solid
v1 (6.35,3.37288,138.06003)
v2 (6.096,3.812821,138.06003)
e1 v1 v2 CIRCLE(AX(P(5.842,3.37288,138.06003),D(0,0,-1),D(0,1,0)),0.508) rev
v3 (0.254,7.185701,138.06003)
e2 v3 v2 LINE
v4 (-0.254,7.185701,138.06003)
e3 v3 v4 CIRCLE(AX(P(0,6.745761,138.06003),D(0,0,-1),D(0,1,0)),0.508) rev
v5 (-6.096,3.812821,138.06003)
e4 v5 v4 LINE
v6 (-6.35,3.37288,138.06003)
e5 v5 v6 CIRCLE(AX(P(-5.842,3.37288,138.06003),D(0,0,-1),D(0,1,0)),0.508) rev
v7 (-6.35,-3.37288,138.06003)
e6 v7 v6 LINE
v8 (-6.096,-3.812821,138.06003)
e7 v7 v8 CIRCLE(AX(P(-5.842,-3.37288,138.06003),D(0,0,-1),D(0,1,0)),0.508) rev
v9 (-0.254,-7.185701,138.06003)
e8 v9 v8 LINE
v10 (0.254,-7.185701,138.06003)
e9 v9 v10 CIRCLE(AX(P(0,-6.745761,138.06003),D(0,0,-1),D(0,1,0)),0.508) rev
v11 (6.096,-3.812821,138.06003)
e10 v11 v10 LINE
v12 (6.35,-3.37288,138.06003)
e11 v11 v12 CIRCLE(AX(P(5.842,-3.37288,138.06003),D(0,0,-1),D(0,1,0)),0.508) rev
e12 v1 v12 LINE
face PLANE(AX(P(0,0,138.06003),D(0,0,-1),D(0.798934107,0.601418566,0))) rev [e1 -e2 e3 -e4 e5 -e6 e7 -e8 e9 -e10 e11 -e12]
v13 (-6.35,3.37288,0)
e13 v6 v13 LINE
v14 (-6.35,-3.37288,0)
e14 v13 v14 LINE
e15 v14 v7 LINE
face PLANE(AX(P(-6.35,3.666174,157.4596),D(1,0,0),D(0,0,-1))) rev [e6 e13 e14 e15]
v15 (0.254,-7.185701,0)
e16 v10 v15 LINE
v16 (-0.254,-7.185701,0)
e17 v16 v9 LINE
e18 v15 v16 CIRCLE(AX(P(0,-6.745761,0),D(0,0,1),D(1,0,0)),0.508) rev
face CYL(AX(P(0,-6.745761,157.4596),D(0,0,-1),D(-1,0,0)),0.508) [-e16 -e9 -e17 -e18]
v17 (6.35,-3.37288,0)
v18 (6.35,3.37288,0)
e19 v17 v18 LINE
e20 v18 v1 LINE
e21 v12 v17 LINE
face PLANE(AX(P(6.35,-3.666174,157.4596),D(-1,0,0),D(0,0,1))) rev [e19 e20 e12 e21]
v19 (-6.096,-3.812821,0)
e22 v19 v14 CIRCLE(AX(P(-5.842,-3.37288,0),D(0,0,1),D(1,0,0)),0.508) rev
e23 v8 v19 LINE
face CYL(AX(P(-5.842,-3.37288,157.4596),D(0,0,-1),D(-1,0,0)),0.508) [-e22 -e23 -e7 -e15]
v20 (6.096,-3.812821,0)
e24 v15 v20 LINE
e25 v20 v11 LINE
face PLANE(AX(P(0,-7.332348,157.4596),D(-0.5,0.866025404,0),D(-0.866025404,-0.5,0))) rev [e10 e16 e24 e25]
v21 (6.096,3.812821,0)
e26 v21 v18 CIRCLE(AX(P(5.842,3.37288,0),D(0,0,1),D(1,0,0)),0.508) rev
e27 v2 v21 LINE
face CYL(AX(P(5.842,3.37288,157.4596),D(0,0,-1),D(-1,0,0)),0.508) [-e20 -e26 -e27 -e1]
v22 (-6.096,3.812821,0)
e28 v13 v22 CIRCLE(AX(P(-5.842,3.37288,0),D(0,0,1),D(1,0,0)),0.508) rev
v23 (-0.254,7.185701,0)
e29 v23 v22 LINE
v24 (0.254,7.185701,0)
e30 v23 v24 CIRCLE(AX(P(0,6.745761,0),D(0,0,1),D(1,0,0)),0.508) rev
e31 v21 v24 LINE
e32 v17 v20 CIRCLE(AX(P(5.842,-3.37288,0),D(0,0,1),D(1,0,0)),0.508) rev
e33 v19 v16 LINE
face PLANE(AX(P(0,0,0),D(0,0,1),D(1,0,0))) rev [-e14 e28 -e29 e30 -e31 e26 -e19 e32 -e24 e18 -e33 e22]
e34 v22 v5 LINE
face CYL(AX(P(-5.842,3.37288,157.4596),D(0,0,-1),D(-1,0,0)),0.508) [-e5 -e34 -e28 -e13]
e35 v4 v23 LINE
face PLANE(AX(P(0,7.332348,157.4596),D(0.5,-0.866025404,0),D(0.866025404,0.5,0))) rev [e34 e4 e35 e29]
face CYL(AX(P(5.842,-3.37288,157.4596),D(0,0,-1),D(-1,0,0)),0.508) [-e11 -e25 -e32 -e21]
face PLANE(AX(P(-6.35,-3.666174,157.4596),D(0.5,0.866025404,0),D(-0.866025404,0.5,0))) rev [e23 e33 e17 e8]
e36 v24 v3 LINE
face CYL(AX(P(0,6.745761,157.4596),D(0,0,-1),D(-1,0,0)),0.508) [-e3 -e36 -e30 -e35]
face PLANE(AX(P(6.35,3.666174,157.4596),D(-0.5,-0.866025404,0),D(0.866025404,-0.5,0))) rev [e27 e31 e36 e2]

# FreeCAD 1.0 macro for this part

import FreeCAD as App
import Part
import Sketcher
from FreeCAD import Vector
Q = App.Units.Quantity


def edges_at(feature, points):
    """Names of the edges that pass closest to the given points."""
    edges = feature.Shape.Edges
    near = lambda p: min(range(len(edges)), key=lambda i: edges[i].distToShape(Part.Vertex(*p))[0])
    return sorted({f"Edge{near(p) + 1}" for p in points})

doc = App.newDocument("Part")
body = doc.addObject("PartDesign::Body", "Body")

# Sketch on XY plane
sketch1 = doc.addObject("Sketcher::SketchObject", "Sketch")
body.addObject(sketch1)
sketch1.AttachmentSupport = (doc.XY_Plane, [""])
sketch1.MapMode = "FlatFace"
sketch1.addGeometry(Part.LineSegment(Vector(0, 7, 0), Vector(-6, 4, 0)), False)
sketch1.addGeometry(Part.LineSegment(Vector(-6, 4, 0), Vector(-6, -4, 0)), False)
sketch1.addGeometry(Part.LineSegment(Vector(-6, -4, 0), Vector(0, -7, 0)), False)
sketch1.addGeometry(Part.LineSegment(Vector(0, -7, 0), Vector(6, -4, 0)), False)
sketch1.addGeometry(Part.LineSegment(Vector(6, -4, 0), Vector(6, 4, 0)), False)
sketch1.addGeometry(Part.LineSegment(Vector(6, 4, 0), Vector(0, 7, 0)), False)
sketch1.addConstraint(Sketcher.Constraint("Coincident", 0, 2, 1, 1))
sketch1.addConstraint(Sketcher.Constraint("Coincident", 1, 2, 2, 1))
sketch1.addConstraint(Sketcher.Constraint("Coincident", 2, 2, 3, 1))
sketch1.addConstraint(Sketcher.Constraint("Coincident", 3, 2, 4, 1))
sketch1.addConstraint(Sketcher.Constraint("Coincident", 4, 2, 5, 1))
sketch1.addConstraint(Sketcher.Constraint("Coincident", 5, 2, 0, 1))
sketch1.addConstraint(Sketcher.Constraint("Vertical", 1))
sketch1.addConstraint(Sketcher.Constraint("Vertical", 4))
sketch1.addConstraint(Sketcher.Constraint("Symmetric", 0, 2, 3, 2, -1, 1))
sketch1.addConstraint(Sketcher.Constraint("Symmetric", 2, 2, 5, 2, -1, 1))
sketch1.addConstraint(Sketcher.Constraint("PointOnObject", 2, 2, -2))
sketch1.addConstraint(Sketcher.Constraint("Parallel", 2, 5))
sketch1.addConstraint(Sketcher.Constraint("Horizontal", 1, 2, 3, 2))
sketch1.addConstraint(Sketcher.Constraint("Angle", 0, Q("-150 deg")))
sketch1.addConstraint(Sketcher.Constraint("DistanceX", 1, 2, 3, 2, Q("0.5 in")))
sketch1.addConstraint(Sketcher.Constraint("DistanceY", 1, 2, 1, 1, 7.332348))
pad1 = doc.addObject("PartDesign::Pad", "Pad")
body.addObject(pad1)
pad1.Profile = sketch1
pad1.Length = 138.06003
doc.recompute()

fillet = doc.addObject("PartDesign::Fillet", "Fillet")
body.addObject(fillet)
fillet.Base = (pad1, edges_at(pad1, [
    (6.35, 3.666, 69.03),
    (6.35, -3.666, 69.03),
    (0, -7.332, 69.03),
    (-6.35, -3.666, 69.03),
    (-6.35, 3.666, 69.03),
    (0, 7.332, 69.03),
]))
fillet.Radius = Q("0.02 in")

doc.recompute()
